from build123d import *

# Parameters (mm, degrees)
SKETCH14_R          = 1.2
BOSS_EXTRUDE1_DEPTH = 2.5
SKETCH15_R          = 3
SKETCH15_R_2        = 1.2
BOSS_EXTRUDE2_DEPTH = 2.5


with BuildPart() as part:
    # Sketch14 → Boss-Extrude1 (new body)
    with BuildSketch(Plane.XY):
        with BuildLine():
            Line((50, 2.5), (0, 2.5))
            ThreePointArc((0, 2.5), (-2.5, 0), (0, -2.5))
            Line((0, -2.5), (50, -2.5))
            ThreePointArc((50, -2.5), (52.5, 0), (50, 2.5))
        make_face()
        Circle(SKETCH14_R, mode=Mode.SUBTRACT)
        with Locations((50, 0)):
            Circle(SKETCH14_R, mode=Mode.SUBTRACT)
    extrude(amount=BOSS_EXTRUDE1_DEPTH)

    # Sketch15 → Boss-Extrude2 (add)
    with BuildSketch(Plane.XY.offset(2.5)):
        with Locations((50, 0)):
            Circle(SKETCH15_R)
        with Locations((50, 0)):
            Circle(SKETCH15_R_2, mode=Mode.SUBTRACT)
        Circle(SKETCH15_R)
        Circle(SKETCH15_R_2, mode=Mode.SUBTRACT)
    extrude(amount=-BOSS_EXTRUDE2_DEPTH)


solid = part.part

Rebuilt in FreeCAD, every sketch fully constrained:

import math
import FreeCAD as App
import Part
import Sketcher

V = App.Vector
Q = App.Units.Quantity

doc = App.newDocument("Part")
body = doc.addObject("PartDesign::Body", "Body")

sketch1 = doc.addObject("Sketcher::SketchObject", "Sketch")
body.addObject(sketch1)
sketch1.AttachmentSupport = (doc.XY_Plane, [""])
sketch1.MapMode = "FlatFace"
sketch1.addGeometry([
    Part.LineSegment(V(50, 2.5, 0), V(0, 2.5, 0)),
    Part.ArcOfCircle(Part.Circle(V(0, 0, 0), V(0, 0, 1), 2.5), math.radians(90), math.radians(270)),
    Part.LineSegment(V(0, -2.5, 0), V(50, -2.5, 0)),
    Part.ArcOfCircle(Part.Circle(V(50, 0, 0), V(0, 0, 1), 2.5), math.radians(-90), math.radians(90)),
    Part.Circle(V(0, 0, 0), V(0, 0, 1), 1.2),
    Part.Circle(V(50, 0, 0), V(0, 0, 1), 1.2),
], False)
sketch1.addConstraint([
    Sketcher.Constraint("Tangent", 0, 2, 1, 1),
    Sketcher.Constraint("Tangent", 1, 2, 2, 1),
    Sketcher.Constraint("Tangent", 2, 2, 3, 1),
    Sketcher.Constraint("Tangent", 3, 2, 0, 1),
    Sketcher.Constraint("Horizontal", 0),
    Sketcher.Constraint("Horizontal", 2),
    Sketcher.Constraint("Coincident", 1, 3, -1, 1),
    Sketcher.Constraint("Coincident", 4, 3, -1, 1),
    Sketcher.Constraint("Coincident", 5, 3, 3, 3),
    Sketcher.Constraint("Equal", 4, 5),
    Sketcher.Constraint("Diameter", 4, Q("2.4 mm")),
    Sketcher.Constraint("Radius", 1, Q("2.5 mm")),
    Sketcher.Constraint("DistanceX", 0, 2, 0, 1, Q("50 mm")),
])
pad1 = doc.addObject("PartDesign::Pad", "Pad")
body.addObject(pad1)
pad1.Profile = sketch1
pad1.Length = 2.5

sketch2 = doc.addObject("Sketcher::SketchObject", "Sketch001")
body.addObject(sketch2)
sketch2.AttachmentSupport = (doc.XY_Plane, [""])
sketch2.MapMode = "FlatFace"
sketch2.AttachmentOffset = App.Placement(V(0, 0, 2.5), App.Rotation())
sketch2.addGeometry([
    Part.Circle(V(50, 0, 0), V(0, 0, 1), 3),
    Part.Circle(V(50, 0, 0), V(0, 0, 1), 1.2),
    Part.Circle(V(0, 0, 0), V(0, 0, 1), 3),
    Part.Circle(V(0, 0, 0), V(0, 0, 1), 1.2),
], False)
sketch2.addConstraint([
    Sketcher.Constraint("Coincident", 2, 3, -1, 1),
    Sketcher.Constraint("Coincident", 3, 3, -1, 1),
    Sketcher.Constraint("Coincident", 1, 3, 0, 3),
    Sketcher.Constraint("Equal", 0, 2),
    Sketcher.Constraint("Equal", 1, 3),
    Sketcher.Constraint("PointOnObject", 0, 3, -1),
    Sketcher.Constraint("Diameter", 0, Q("6 mm")),
    Sketcher.Constraint("Diameter", 1, Q("2.4 mm")),
    Sketcher.Constraint("DistanceX", -1, 1, 0, 3, Q("50 mm")),
])
pad2 = doc.addObject("PartDesign::Pad", "Pad001")
body.addObject(pad2)
pad2.Profile = sketch2
pad2.Length = 2.5
pad2.Reversed = True

doc.recompute()
